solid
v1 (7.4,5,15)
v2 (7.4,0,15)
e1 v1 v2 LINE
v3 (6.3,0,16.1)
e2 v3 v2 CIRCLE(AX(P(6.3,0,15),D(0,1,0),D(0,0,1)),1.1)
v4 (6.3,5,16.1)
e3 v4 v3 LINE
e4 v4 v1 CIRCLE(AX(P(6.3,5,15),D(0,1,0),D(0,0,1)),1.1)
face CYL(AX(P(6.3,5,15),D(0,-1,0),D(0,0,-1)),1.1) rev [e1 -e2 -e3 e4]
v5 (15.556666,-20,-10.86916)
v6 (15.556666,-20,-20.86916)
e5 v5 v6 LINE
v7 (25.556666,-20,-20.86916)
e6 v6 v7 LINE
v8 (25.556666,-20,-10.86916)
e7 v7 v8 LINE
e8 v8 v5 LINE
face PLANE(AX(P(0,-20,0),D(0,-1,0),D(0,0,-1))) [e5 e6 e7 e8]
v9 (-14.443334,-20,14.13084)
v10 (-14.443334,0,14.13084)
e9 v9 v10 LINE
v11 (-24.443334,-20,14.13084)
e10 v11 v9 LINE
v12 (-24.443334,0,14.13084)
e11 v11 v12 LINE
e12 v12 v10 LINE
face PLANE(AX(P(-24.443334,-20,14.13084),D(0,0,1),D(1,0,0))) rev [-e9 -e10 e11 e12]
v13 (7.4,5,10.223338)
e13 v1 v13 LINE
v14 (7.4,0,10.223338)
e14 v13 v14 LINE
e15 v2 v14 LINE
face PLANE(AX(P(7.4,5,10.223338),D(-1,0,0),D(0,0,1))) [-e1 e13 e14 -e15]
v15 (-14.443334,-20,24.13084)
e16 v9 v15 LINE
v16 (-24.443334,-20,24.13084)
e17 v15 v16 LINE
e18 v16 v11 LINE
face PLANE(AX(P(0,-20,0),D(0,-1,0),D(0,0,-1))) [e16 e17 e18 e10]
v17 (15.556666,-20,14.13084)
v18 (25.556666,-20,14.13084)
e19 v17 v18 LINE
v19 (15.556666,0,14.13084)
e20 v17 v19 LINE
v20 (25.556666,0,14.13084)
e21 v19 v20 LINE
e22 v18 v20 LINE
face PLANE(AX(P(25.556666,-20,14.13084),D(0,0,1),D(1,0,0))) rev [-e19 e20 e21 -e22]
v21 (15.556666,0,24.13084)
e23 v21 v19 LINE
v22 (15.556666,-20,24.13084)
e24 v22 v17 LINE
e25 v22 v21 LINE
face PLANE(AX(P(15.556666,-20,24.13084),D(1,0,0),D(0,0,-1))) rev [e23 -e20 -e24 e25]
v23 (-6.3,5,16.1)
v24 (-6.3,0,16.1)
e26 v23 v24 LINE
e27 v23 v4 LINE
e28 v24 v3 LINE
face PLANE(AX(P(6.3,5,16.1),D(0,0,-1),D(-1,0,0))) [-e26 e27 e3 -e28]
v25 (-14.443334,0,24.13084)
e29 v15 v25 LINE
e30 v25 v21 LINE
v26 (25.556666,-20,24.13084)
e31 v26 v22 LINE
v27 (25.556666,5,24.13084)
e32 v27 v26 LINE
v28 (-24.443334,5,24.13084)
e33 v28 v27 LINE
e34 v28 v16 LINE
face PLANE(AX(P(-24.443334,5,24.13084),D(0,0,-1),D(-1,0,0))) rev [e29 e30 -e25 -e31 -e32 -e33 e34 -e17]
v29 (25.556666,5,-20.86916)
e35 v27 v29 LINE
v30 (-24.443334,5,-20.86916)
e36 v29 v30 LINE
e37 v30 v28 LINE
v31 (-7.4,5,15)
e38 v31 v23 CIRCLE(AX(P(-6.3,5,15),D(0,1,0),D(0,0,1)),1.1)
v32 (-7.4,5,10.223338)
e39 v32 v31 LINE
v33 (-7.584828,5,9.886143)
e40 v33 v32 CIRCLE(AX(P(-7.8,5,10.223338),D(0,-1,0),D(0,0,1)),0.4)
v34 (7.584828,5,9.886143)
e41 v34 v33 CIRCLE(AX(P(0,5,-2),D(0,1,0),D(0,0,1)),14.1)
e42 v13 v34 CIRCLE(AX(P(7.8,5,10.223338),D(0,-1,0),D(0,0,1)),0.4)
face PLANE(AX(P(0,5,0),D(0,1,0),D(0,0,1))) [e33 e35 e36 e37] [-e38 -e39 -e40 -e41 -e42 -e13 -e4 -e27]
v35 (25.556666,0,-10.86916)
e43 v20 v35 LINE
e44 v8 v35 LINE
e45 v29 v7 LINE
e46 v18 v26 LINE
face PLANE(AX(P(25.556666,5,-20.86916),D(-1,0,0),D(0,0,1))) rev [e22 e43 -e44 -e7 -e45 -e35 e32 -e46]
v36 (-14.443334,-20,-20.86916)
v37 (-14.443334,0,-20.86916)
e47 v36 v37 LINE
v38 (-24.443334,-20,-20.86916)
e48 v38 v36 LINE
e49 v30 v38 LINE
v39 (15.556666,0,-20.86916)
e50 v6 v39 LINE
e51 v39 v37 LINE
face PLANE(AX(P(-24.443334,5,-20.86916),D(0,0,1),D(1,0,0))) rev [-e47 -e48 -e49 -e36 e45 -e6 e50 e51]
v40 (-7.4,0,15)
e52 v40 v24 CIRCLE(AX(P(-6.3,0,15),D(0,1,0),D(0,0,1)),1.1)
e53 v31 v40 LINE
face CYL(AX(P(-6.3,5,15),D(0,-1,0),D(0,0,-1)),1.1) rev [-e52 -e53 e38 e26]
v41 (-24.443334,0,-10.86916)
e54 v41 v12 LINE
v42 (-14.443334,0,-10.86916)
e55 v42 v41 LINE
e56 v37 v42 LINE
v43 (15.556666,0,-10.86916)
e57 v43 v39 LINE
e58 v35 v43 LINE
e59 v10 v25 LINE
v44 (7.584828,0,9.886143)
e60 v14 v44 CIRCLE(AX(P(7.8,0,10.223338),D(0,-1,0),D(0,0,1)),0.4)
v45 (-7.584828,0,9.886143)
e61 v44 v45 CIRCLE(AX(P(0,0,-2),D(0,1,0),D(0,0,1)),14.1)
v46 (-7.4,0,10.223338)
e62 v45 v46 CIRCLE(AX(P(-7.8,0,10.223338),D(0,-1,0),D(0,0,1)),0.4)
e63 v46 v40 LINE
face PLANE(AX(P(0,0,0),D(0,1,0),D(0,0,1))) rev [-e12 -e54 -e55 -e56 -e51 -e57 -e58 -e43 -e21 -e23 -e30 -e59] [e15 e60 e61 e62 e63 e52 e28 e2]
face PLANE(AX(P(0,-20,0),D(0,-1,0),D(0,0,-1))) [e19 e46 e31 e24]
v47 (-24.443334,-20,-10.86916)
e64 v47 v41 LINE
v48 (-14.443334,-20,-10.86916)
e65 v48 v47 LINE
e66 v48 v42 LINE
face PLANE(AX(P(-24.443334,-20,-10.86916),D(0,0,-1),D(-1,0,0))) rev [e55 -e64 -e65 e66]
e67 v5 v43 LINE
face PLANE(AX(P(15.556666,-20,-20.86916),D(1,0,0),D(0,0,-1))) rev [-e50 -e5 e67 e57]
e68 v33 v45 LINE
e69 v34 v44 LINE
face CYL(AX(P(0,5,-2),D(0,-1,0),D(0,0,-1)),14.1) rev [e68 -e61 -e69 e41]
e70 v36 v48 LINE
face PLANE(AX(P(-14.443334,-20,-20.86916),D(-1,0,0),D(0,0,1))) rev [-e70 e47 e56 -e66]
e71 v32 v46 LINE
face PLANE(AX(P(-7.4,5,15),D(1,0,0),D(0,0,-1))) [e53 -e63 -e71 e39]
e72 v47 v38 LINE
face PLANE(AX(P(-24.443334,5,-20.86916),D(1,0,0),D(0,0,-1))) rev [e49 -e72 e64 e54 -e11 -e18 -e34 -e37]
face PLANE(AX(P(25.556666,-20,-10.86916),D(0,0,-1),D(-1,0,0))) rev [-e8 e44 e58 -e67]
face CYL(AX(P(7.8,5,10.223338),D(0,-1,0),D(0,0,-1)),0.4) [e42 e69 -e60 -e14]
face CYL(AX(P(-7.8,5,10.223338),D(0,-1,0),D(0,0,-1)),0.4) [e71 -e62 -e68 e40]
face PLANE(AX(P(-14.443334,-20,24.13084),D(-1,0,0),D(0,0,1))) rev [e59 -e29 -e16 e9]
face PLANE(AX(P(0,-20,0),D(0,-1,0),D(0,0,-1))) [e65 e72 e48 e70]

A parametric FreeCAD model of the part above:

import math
import FreeCAD as App
import Part
import Sketcher
from FreeCAD import Vector


def add_polygon(sketch, points):
    """Adds a closed chain of lines whose ends are joined by coincident constraints."""
    first, n = sketch.GeometryCount, len(points)
    for a, b in zip(points, points[1:] + points[:1]):
        sketch.addGeometry(Part.LineSegment(App.Vector(*a, 0), App.Vector(*b, 0)), False)
    for i in range(n):
        sketch.addConstraint(Sketcher.Constraint("Coincident", first + i, 2, first + (i + 1) % n, 1))

doc = App.newDocument("Part")
body = doc.addObject("PartDesign::Body", "Body")

# Sketch on XZ plane
sketch1 = body.newObject("Sketcher::SketchObject", "Sketch")
sketch1.AttachmentSupport = (doc.getObject("XZ_Plane"), [""])
sketch1.MapMode = "FlatFace"
add_polygon(sketch1, [(-24.44, -20.87), (-24.44, 24.13), (25.56, 24.13), (25.56, -20.87)])  # lines 0-3
sketch1.addGeometry(Part.ArcOfCircle(Part.Circle(Vector(-6.3, 15, 0), Vector(0, 0, 1), 1.1), math.radians(90), math.radians(180)), False)  # 4
sketch1.addGeometry(Part.LineSegment(Vector(-7.4, 15, 0), Vector(-7.4, 10.22, 0)), False)  # 5
sketch1.addGeometry(Part.ArcOfCircle(Part.Circle(Vector(-7.8, 10.22, 0), Vector(0, 0, 1), 0.4), math.radians(-57), math.radians(0)), False)  # 6
sketch1.addGeometry(Part.ArcOfCircle(Part.Circle(Vector(0, -2, 0), Vector(0, 0, 1), 14.1), math.radians(123), math.radians(417)), False)  # 7
sketch1.addGeometry(Part.ArcOfCircle(Part.Circle(Vector(7.8, 10.22, 0), Vector(0, 0, 1), 0.4), math.radians(180), math.radians(237)), False)  # 8
sketch1.addGeometry(Part.LineSegment(Vector(7.4, 10.22, 0), Vector(7.4, 15, 0)), False)  # 9
sketch1.addGeometry(Part.ArcOfCircle(Part.Circle(Vector(6.3, 15, 0), Vector(0, 0, 1), 1.1), math.radians(0), math.radians(90)), False)  # 10
sketch1.addGeometry(Part.LineSegment(Vector(6.3, 16.1, 0), Vector(-6.3, 16.1, 0)), False)  # 11
sketch1.addConstraint(Sketcher.Constraint("Tangent", 4, 2, 5, 1))
sketch1.addConstraint(Sketcher.Constraint("Tangent", 5, 2, 6, 2))
sketch1.addConstraint(Sketcher.Constraint("Tangent", 6, 1, 7, 1))
sketch1.addConstraint(Sketcher.Constraint("Tangent", 7, 2, 8, 2))
sketch1.addConstraint(Sketcher.Constraint("Tangent", 8, 1, 9, 1))
sketch1.addConstraint(Sketcher.Constraint("Tangent", 9, 2, 10, 1))
sketch1.addConstraint(Sketcher.Constraint("Tangent", 10, 2, 11, 1))
sketch1.addConstraint(Sketcher.Constraint("Tangent", 11, 2, 4, 1))
sketch1.addConstraint(Sketcher.Constraint("Vertical", 0))
sketch1.addConstraint(Sketcher.Constraint("Horizontal", 1))
sketch1.addConstraint(Sketcher.Constraint("Vertical", 2))
sketch1.addConstraint(Sketcher.Constraint("Horizontal", 3))
sketch1.addConstraint(Sketcher.Constraint("Vertical", 5))
sketch1.addConstraint(Sketcher.Constraint("Vertical", 9))
sketch1.addConstraint(Sketcher.Constraint("Horizontal", 11))
sketch1.addConstraint(Sketcher.Constraint("Equal", 6, 8))
sketch1.addConstraint(Sketcher.Constraint("Equal", 4, 10))
sketch1.addConstraint(Sketcher.Constraint("Symmetric", 6, 3, 8, 3, -2))
sketch1.addConstraint(Sketcher.Constraint("Radius", 4, 1.1))
sketch1.addConstraint(Sketcher.Constraint("Radius", 6, 0.4))
sketch1.addConstraint(Sketcher.Constraint("Radius", 7, 14.1))
sketch1.addConstraint(Sketcher.Constraint("DistanceX", 1, 1, 1, 2, 50.0))
sketch1.addConstraint(Sketcher.Constraint("DistanceY", 0, 1, 0, 2, 45.0))
sketch1.addConstraint(Sketcher.Constraint("DistanceX", 11, 2, 11, 1, 12.6))
sketch1.addConstraint(Sketcher.Constraint("DistanceY", -1, 1, 4, 3, 15.0))
sketch1.addConstraint(Sketcher.Constraint("DistanceY", 7, 3, -1, 1, 2.0))
sketch1.addConstraint(Sketcher.Constraint("DistanceY", 6, 3, 0, 2, 13.907502))
sketch1.addConstraint(Sketcher.Constraint("DistanceX", 0, 2, -1, 1, 24.443334))
pad1 = body.newObject("PartDesign::Pad", "Pad")
pad1.Profile = sketch1
pad1.Length = 5
pad1.Reversed = True

# Sketch on XZ plane
sketch2 = body.newObject("Sketcher::SketchObject", "Sketch001")
sketch2.AttachmentSupport = (doc.getObject("XZ_Plane"), [""])
sketch2.MapMode = "FlatFace"
add_polygon(sketch2, [(-24, 24), (-24, 14), (-14, 14), (-14, 24)])  # lines 0-3
add_polygon(sketch2, [(-24, -11), (-24, -21), (-14, -21), (-14, -11)])  # lines 4-7
add_polygon(sketch2, [(16, -11), (16, -21), (26, -21), (26, -11)])  # lines 8-11
add_polygon(sketch2, [(16, 24), (16, 14), (26, 14), (26, 24)])  # lines 12-15
sketch2.addConstraint(Sketcher.Constraint("Vertical", 0))
sketch2.addConstraint(Sketcher.Constraint("Horizontal", 1))
sketch2.addConstraint(Sketcher.Constraint("Vertical", 2))
sketch2.addConstraint(Sketcher.Constraint("Horizontal", 3))
sketch2.addConstraint(Sketcher.Constraint("Vertical", 4))
sketch2.addConstraint(Sketcher.Constraint("Horizontal", 5))
sketch2.addConstraint(Sketcher.Constraint("Vertical", 6))
sketch2.addConstraint(Sketcher.Constraint("Horizontal", 7))
sketch2.addConstraint(Sketcher.Constraint("Vertical", 8))
sketch2.addConstraint(Sketcher.Constraint("Horizontal", 9))
sketch2.addConstraint(Sketcher.Constraint("Vertical", 10))
sketch2.addConstraint(Sketcher.Constraint("Horizontal", 11))
sketch2.addConstraint(Sketcher.Constraint("Vertical", 12))
sketch2.addConstraint(Sketcher.Constraint("Horizontal", 13))
sketch2.addConstraint(Sketcher.Constraint("Vertical", 14))
sketch2.addConstraint(Sketcher.Constraint("Horizontal", 15))
sketch2.addConstraint(Sketcher.Constraint("Horizontal", 5, 2, 8, 2))
sketch2.addConstraint(Sketcher.Constraint("Horizontal", 7, 2, 10, 2))
sketch2.addConstraint(Sketcher.Constraint("Horizontal", 1, 2, 12, 2))
sketch2.addConstraint(Sketcher.Constraint("Horizontal", 3, 2, 14, 2))
sketch2.addConstraint(Sketcher.Constraint("Vertical", 3, 2, 4, 2))
sketch2.addConstraint(Sketcher.Constraint("Vertical", 2, 2, 5, 2))
sketch2.addConstraint(Sketcher.Constraint("Vertical", 11, 2, 12, 2))
sketch2.addConstraint(Sketcher.Constraint("Vertical", 10, 2, 13, 2))
sketch2.addConstraint(Sketcher.Constraint("Equal", 7, 9))
sketch2.addConstraint(Sketcher.Constraint("Equal", 15, 0))
sketch2.addConstraint(Sketcher.Constraint("Equal", 2, 4))
sketch2.addConstraint(Sketcher.Constraint("DistanceX", 1, 1, 1, 2, 10.0))
sketch2.addConstraint(Sketcher.Constraint("DistanceY", 4, 2, 0, 2, 35.0))
sketch2.addConstraint(Sketcher.Constraint("DistanceX", 5, 2, 8, 2, 30.0))
sketch2.addConstraint(Sketcher.Constraint("DistanceY", -1, 1, 0, 2, 14.13084))
sketch2.addConstraint(Sketcher.Constraint("DistanceX", 0, 2, -1, 1, 24.443334))
pad2 = body.newObject("PartDesign::Pad", "Pad001")
pad2.Profile = sketch2
pad2.Length = 20

doc.recompute()
